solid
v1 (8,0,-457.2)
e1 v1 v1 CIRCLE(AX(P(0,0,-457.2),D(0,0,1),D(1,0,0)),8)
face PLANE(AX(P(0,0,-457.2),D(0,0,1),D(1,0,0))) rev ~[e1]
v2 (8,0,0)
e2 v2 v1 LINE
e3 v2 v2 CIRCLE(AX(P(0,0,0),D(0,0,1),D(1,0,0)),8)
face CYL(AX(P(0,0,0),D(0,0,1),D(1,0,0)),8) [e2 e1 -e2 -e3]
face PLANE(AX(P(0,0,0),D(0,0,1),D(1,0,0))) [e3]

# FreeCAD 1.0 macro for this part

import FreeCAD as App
import Part
import Sketcher

doc = App.newDocument("Part")
body = doc.addObject("PartDesign::Body", "Body")

sketch1 = body.newObject("Sketcher::SketchObject", "Sketch")
sketch1.AttachmentSupport = (doc.getObject("XY_Plane"), [""])
sketch1.MapMode = "FlatFace"
sketch1.addGeometry(Part.Circle(App.Vector(0, 0, 0), App.Vector(0, 0, 1), 8), False)
sketch1.addConstraint(Sketcher.Constraint("Coincident", 0, 3, -1, 1))
sketch1.addConstraint(Sketcher.Constraint("Diameter", 0, 16.0))
pad1 = body.newObject("PartDesign::Pad", "Pad")
pad1.Profile = sketch1
pad1.Length = 457.2
pad1.Reversed = True

doc.recompute()
